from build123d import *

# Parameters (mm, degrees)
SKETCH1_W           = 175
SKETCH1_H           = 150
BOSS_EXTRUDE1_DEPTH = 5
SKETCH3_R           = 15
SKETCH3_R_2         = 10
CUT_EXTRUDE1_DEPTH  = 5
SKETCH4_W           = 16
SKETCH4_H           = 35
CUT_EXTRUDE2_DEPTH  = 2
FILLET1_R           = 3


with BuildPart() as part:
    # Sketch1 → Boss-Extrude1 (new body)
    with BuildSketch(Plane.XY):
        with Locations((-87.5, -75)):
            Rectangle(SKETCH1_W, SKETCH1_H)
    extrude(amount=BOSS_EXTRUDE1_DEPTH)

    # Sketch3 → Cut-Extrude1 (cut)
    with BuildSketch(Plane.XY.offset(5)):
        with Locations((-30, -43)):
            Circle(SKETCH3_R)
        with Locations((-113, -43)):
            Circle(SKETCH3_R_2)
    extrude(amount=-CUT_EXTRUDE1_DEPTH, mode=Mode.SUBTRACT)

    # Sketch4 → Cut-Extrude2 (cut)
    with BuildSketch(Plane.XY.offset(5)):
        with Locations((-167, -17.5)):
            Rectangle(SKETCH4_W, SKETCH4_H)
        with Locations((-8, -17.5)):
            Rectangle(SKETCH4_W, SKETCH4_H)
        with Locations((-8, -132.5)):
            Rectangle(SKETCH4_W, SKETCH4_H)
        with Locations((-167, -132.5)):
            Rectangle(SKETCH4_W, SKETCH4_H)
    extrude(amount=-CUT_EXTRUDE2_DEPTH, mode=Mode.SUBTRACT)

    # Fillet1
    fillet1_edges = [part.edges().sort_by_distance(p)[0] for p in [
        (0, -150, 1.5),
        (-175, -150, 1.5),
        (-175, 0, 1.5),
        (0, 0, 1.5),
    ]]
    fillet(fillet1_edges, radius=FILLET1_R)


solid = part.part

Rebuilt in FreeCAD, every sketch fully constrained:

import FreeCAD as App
import Part
import Sketcher
Q = App.Units.Quantity


def edges_at(feature, points):
    """Names of the edges that pass closest to the given points."""
    edges = feature.Shape.Edges
    near = lambda p: min(range(len(edges)), key=lambda i: edges[i].distToShape(Part.Vertex(*p))[0])
    return sorted({f"Edge{near(p) + 1}" for p in points})


def add_polygon(sketch, points):
    """Adds a closed chain of lines whose ends are joined by coincident constraints."""
    first, n = sketch.GeometryCount, len(points)
    for a, b in zip(points, points[1:] + points[:1]):
        sketch.addGeometry(Part.LineSegment(App.Vector(*a, 0), App.Vector(*b, 0)), False)
    for i in range(n):
        sketch.addConstraint(Sketcher.Constraint("Coincident", first + i, 2, first + (i + 1) % n, 1))

doc = App.newDocument("Part")
body = doc.addObject("PartDesign::Body", "Body")

# Sketch on XY plane
sketch1 = doc.addObject("Sketcher::SketchObject", "Sketch")
body.addObject(sketch1)
sketch1.AttachmentSupport = (doc.XY_Plane, [""])
sketch1.MapMode = "FlatFace"
add_polygon(sketch1, [(-175, 0), (-175, -150), (0, -150), (0, 0)])  # lines 0-3
sketch1.addConstraint([
    Sketcher.Constraint("Vertical", 0),
    Sketcher.Constraint("Horizontal", 1),
    Sketcher.Constraint("Vertical", 2),
    Sketcher.Constraint("Horizontal", 3),
    Sketcher.Constraint("Coincident", 2, 2, -1, 1),
    Sketcher.Constraint("DistanceX", 1, 1, 1, 2, Q("175 mm")),
    Sketcher.Constraint("DistanceY", 0, 2, 0, 1, Q("150 mm")),
])
pad1 = doc.addObject("PartDesign::Pad", "Pad")
body.addObject(pad1)
pad1.Profile = sketch1
pad1.Length = 5

# Sketch on XY plane
sketch2 = doc.addObject("Sketcher::SketchObject", "Sketch001")
body.addObject(sketch2)
sketch2.AttachmentSupport = (doc.XY_Plane, [""])
sketch2.MapMode = "FlatFace"
sketch2.AttachmentOffset = App.Placement(App.Vector(0, 0, 5), App.Rotation())
sketch2.addGeometry([
    Part.Circle(App.Vector(-30, -43, 0), App.Vector(0, 0, 1), 15),
    Part.Circle(App.Vector(-113, -43, 0), App.Vector(0, 0, 1), 10),
], False)
sketch2.addConstraint([
    Sketcher.Constraint("Horizontal", 0, 3, 1, 3),
    Sketcher.Constraint("Diameter", 0, Q("30 mm")),
    Sketcher.Constraint("Diameter", 1, Q("20 mm")),
    Sketcher.Constraint("DistanceX", 0, 3, -1, 1, Q("30 mm")),
    Sketcher.Constraint("DistanceY", 0, 3, -1, 1, Q("43 mm")),
    Sketcher.Constraint("DistanceX", 1, 3, -1, 1, Q("113 mm")),
])
pocket1 = doc.addObject("PartDesign::Pocket", "Pocket")
body.addObject(pocket1)
pocket1.Profile = sketch2
pocket1.Length = 5

# Sketch on XY plane
sketch3 = doc.addObject("Sketcher::SketchObject", "Sketch002")
body.addObject(sketch3)
sketch3.AttachmentSupport = (doc.XY_Plane, [""])
sketch3.MapMode = "FlatFace"
sketch3.AttachmentOffset = App.Placement(App.Vector(0, 0, 5), App.Rotation())
add_polygon(sketch3, [(-175, 0), (-175, -35), (-159, -35), (-159, 0)])  # lines 0-3
add_polygon(sketch3, [(-16, 0), (-16, -35), (0, -35), (0, 0)])  # lines 4-7
add_polygon(sketch3, [(-16, -115), (-16, -150), (0, -150), (0, -115)])  # lines 8-11
add_polygon(sketch3, [(-175, -115), (-175, -150), (-159, -150), (-159, -115)])  # lines 12-15
sketch3.addConstraint([
    Sketcher.Constraint("Vertical", 0),
    Sketcher.Constraint("Horizontal", 1),
    Sketcher.Constraint("Vertical", 2),
    Sketcher.Constraint("Horizontal", 3),
    Sketcher.Constraint("Vertical", 4),
    Sketcher.Constraint("Horizontal", 5),
    Sketcher.Constraint("Vertical", 6),
    Sketcher.Constraint("Horizontal", 7),
    Sketcher.Constraint("Vertical", 8),
    Sketcher.Constraint("Horizontal", 9),
    Sketcher.Constraint("Vertical", 10),
    Sketcher.Constraint("Horizontal", 11),
    Sketcher.Constraint("Vertical", 12),
    Sketcher.Constraint("Horizontal", 13),
    Sketcher.Constraint("Vertical", 14),
    Sketcher.Constraint("Horizontal", 15),
    Sketcher.Constraint("Coincident", 6, 2, -1, 1),
    Sketcher.Constraint("PointOnObject", 2, 2, -1),
    Sketcher.Constraint("PointOnObject", 9, 2, -2),
    Sketcher.Constraint("Horizontal", 1, 2, 4, 2),
    Sketcher.Constraint("Horizontal", 9, 2, 12, 2),
    Sketcher.Constraint("Horizontal", 11, 2, 14, 2),
    Sketcher.Constraint("Vertical", 7, 2, 8, 2),
    Sketcher.Constraint("Vertical", 3, 2, 12, 2),
    Sketcher.Constraint("Vertical", 2, 2, 13, 2),
    Sketcher.Constraint("Equal", 3, 5),
    Sketcher.Constraint("Equal", 6, 8),
    Sketcher.Constraint("DistanceX", 1, 1, 1, 2, Q("16 mm")),
    Sketcher.Constraint("DistanceY", 0, 2, 0, 1, Q("35 mm")),
    Sketcher.Constraint("DistanceX", 0, 2, -1, 1, Q("175 mm")),
    Sketcher.Constraint("DistanceY", 8, 2, -1, 1, Q("150 mm")),
])
pocket2 = doc.addObject("PartDesign::Pocket", "Pocket001")
body.addObject(pocket2)
pocket2.Profile = sketch3
pocket2.Length = 2
doc.recompute()

fillet = doc.addObject("PartDesign::Fillet", "Fillet")
body.addObject(fillet)
fillet.Base = (pocket2, edges_at(pocket2, [
    (0, -150, 1.5),
    (-175, -150, 1.5),
    (-175, 0, 1.5),
    (0, 0, 1.5),
]))
fillet.Radius = 3

doc.recompute()
